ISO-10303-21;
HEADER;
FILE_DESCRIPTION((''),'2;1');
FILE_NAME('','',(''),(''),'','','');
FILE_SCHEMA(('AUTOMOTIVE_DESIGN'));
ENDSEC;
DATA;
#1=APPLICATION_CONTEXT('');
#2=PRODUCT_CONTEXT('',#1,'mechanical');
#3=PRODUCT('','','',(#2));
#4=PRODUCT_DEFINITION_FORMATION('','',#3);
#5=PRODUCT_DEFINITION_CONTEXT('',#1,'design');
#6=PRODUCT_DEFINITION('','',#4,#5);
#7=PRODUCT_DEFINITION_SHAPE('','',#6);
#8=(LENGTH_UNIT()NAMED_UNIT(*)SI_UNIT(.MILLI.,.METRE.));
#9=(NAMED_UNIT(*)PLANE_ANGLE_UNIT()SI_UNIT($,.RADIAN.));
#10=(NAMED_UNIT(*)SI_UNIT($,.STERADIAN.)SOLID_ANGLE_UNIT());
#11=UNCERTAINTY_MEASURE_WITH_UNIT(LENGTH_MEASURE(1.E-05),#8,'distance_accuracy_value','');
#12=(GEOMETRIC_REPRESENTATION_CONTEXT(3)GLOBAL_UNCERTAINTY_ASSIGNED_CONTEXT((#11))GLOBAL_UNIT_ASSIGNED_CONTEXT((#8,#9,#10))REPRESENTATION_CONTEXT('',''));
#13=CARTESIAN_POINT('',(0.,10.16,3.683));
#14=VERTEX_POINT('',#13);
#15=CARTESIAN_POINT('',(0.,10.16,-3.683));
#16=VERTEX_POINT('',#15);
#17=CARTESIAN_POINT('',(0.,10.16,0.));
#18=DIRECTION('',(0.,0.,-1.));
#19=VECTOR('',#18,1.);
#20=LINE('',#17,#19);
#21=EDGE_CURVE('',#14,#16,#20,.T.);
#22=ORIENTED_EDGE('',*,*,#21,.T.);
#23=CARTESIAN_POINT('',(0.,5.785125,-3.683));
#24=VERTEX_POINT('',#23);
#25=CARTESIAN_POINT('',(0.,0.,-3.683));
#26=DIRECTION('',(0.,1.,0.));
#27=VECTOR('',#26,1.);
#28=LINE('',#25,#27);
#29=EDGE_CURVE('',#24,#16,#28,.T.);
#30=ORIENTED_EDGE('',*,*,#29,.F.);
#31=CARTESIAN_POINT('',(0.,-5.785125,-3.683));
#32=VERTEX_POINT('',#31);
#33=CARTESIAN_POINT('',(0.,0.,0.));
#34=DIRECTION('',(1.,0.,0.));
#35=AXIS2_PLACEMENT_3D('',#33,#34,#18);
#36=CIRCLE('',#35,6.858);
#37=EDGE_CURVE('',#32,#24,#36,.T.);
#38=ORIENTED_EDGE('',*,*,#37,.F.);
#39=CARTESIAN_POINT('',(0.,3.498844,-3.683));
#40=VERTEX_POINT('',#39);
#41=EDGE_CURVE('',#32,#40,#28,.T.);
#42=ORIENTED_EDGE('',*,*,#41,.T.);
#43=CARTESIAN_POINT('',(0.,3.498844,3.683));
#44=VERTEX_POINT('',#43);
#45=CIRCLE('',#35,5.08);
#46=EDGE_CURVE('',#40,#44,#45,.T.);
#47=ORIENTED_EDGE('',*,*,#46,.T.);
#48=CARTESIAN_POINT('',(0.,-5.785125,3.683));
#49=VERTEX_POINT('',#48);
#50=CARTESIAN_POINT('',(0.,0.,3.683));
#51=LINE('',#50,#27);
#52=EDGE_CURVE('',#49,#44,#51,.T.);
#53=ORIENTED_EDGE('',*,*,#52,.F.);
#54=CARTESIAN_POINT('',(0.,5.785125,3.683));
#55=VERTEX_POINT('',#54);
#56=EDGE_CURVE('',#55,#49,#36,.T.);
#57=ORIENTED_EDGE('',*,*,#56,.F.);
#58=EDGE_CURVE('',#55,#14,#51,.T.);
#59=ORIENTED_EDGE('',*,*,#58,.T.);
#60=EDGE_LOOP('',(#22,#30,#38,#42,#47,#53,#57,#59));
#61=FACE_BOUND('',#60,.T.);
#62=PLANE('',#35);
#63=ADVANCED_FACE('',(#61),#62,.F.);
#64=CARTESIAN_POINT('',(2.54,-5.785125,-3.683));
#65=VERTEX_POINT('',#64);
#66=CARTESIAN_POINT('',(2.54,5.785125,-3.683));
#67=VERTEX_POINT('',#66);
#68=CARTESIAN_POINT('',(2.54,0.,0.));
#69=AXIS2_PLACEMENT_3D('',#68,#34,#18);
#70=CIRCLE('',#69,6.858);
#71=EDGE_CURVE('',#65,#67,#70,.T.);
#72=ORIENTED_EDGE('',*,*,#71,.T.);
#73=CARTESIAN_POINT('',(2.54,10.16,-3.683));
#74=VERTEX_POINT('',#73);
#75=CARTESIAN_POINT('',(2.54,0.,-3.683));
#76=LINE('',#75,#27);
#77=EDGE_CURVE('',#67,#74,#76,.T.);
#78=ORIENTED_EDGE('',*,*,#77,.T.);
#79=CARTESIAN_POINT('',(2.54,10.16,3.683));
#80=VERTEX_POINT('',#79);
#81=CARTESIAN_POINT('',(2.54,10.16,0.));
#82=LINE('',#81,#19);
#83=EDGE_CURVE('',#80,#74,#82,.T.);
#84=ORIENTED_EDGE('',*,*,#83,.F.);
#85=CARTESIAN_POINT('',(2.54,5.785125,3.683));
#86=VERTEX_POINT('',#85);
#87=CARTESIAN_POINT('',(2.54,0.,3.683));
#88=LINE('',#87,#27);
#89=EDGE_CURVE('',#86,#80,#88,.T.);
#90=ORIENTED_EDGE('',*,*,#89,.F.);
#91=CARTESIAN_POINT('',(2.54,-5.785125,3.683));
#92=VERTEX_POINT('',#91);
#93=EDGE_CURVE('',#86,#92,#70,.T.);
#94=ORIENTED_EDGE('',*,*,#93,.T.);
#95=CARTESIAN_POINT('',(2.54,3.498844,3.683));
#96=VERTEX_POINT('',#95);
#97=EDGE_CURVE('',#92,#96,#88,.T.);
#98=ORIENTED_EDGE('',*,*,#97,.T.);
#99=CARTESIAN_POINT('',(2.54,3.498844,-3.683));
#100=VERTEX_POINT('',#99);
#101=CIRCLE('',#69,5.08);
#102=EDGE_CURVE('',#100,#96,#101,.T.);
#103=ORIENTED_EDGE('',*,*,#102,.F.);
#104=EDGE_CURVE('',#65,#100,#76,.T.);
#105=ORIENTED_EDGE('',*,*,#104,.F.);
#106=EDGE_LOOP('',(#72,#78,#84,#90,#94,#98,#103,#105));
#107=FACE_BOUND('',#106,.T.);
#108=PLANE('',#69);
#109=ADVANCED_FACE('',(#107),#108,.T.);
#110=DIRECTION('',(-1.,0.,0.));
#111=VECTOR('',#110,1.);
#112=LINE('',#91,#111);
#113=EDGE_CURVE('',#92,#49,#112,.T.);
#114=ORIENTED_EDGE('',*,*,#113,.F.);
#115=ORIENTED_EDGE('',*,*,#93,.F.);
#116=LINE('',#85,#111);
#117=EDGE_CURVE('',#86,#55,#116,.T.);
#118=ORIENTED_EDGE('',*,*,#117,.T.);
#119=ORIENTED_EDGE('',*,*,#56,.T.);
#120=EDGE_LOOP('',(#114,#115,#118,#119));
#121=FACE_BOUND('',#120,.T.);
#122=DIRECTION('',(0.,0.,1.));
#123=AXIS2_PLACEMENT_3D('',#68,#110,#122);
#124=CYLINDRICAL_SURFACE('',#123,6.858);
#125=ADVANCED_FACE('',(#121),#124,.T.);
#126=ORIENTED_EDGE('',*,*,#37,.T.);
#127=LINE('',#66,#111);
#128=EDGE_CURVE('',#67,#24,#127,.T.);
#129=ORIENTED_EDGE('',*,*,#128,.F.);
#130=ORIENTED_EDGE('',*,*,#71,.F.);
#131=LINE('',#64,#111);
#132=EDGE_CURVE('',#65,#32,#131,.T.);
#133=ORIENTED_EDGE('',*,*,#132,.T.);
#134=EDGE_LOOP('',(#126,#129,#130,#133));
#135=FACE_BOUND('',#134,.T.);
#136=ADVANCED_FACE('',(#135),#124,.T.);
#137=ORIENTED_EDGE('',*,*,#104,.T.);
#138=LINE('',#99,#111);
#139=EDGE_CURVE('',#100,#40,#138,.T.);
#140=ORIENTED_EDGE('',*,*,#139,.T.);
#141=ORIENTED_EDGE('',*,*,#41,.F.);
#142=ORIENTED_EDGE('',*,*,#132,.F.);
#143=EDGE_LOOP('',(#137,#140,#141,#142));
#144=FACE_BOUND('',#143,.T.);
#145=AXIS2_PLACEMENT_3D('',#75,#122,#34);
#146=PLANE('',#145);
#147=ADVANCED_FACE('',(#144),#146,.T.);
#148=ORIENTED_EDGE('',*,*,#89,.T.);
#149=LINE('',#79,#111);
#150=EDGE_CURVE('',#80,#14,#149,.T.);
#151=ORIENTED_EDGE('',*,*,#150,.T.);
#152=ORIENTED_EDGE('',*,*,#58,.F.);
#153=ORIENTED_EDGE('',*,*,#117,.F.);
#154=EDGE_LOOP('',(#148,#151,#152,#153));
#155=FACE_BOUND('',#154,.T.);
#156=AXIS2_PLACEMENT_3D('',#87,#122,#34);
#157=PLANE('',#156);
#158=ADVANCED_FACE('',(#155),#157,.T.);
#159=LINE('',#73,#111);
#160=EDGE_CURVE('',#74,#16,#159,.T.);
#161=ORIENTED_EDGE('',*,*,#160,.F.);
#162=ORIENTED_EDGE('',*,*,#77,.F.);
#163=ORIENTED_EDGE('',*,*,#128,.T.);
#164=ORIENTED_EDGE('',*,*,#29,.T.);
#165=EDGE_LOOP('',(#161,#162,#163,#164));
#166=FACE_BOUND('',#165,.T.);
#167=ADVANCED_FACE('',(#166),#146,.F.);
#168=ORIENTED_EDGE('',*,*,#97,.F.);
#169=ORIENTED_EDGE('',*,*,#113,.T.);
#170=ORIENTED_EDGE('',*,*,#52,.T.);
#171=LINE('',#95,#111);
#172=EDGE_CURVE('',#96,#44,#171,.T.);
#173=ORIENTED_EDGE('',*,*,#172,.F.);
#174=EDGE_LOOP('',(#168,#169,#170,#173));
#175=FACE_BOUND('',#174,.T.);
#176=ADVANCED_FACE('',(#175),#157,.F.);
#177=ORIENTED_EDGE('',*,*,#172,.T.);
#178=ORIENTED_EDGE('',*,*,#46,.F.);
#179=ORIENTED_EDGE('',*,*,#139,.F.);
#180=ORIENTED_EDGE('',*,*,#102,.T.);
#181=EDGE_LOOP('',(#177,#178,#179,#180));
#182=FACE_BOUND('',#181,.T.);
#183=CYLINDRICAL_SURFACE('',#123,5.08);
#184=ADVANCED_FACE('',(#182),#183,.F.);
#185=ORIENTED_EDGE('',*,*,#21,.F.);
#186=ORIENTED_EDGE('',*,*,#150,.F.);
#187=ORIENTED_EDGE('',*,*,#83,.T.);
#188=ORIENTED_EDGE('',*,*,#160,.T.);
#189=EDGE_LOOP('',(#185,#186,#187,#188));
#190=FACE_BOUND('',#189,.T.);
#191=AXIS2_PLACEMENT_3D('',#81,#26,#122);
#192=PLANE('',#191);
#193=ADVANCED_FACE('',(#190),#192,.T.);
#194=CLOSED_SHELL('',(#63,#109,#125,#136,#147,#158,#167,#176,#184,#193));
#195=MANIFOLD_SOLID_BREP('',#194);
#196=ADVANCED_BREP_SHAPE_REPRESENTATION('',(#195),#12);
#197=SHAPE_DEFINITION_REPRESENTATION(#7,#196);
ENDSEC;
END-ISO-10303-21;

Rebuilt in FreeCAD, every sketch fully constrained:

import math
import FreeCAD as App
import Part
import Sketcher
Q = App.Units.Quantity

doc = App.newDocument("Part")
body = doc.addObject("PartDesign::Body", "Body")

sketch1 = body.newObject("Sketcher::SketchObject", "Sketch")
sketch1.AttachmentSupport = (doc.getObject("YZ_Plane"), [""])
sketch1.MapMode = "FlatFace"
sketch1.addGeometry([
    Part.LineSegment(App.Vector(-5.8, 3.7, 0), App.Vector(3.5, 3.7, 0)),
    Part.ArcOfCircle(Part.Circle(App.Vector(0, 0, 0), App.Vector(0, 0, 1), 5.1), math.radians(-46), math.radians(46)),
    Part.LineSegment(App.Vector(3.5, -3.7, 0), App.Vector(-5.8, -3.7, 0)),
    Part.ArcOfCircle(Part.Circle(App.Vector(0, 0, 0), App.Vector(0, 0, 1), 6.9), math.radians(-148), math.radians(-32)),
    Part.LineSegment(App.Vector(5.8, -3.7, 0), App.Vector(10.2, -3.7, 0)),
    Part.LineSegment(App.Vector(10.2, -3.7, 0), App.Vector(10.2, 3.7, 0)),
    Part.LineSegment(App.Vector(10.2, 3.7, 0), App.Vector(5.8, 3.7, 0)),
    Part.ArcOfCircle(Part.Circle(App.Vector(0, 0, 0), App.Vector(0, 0, 1), 6.9), math.radians(32), math.radians(148)),
], False)
sketch1.addConstraint([
    Sketcher.Constraint("Coincident", 0, 2, 1, 2),
    Sketcher.Constraint("Coincident", 1, 1, 2, 1),
    Sketcher.Constraint("Coincident", 2, 2, 3, 1),
    Sketcher.Constraint("Coincident", 3, 2, 4, 1),
    Sketcher.Constraint("Coincident", 4, 2, 5, 1),
    Sketcher.Constraint("Coincident", 5, 2, 6, 1),
    Sketcher.Constraint("Coincident", 6, 2, 7, 1),
    Sketcher.Constraint("Coincident", 7, 2, 0, 1),
    Sketcher.Constraint("Horizontal", 0),
    Sketcher.Constraint("Horizontal", 2),
    Sketcher.Constraint("Horizontal", 4),
    Sketcher.Constraint("Vertical", 5),
    Sketcher.Constraint("Horizontal", 6),
    Sketcher.Constraint("Coincident", 1, 3, -1, 1),
    Sketcher.Constraint("Coincident", 3, 3, -1, 1),
    Sketcher.Constraint("Coincident", 7, 3, -1, 1),
    Sketcher.Constraint("Equal", 3, 7),
    Sketcher.Constraint("Horizontal", 2, 2, 3, 2),
    Sketcher.Constraint("Horizontal", 0, 2, 5, 2),
    Sketcher.Constraint("Vertical", 0, 2, 1, 1),
    Sketcher.Constraint("Radius", 1, Q("0.2 in")),
    Sketcher.Constraint("Radius", 3, Q("0.27 in")),
    Sketcher.Constraint("DistanceY", 5, 1, 5, 2, Q("0.29 in")),
    Sketcher.Constraint("DistanceX", -1, 1, 4, 2, Q("0.4 in")),
])
pad1 = body.newObject("PartDesign::Pad", "Pad")
pad1.Profile = sketch1
pad1.Length = Q("0.1 in")

doc.recompute()
